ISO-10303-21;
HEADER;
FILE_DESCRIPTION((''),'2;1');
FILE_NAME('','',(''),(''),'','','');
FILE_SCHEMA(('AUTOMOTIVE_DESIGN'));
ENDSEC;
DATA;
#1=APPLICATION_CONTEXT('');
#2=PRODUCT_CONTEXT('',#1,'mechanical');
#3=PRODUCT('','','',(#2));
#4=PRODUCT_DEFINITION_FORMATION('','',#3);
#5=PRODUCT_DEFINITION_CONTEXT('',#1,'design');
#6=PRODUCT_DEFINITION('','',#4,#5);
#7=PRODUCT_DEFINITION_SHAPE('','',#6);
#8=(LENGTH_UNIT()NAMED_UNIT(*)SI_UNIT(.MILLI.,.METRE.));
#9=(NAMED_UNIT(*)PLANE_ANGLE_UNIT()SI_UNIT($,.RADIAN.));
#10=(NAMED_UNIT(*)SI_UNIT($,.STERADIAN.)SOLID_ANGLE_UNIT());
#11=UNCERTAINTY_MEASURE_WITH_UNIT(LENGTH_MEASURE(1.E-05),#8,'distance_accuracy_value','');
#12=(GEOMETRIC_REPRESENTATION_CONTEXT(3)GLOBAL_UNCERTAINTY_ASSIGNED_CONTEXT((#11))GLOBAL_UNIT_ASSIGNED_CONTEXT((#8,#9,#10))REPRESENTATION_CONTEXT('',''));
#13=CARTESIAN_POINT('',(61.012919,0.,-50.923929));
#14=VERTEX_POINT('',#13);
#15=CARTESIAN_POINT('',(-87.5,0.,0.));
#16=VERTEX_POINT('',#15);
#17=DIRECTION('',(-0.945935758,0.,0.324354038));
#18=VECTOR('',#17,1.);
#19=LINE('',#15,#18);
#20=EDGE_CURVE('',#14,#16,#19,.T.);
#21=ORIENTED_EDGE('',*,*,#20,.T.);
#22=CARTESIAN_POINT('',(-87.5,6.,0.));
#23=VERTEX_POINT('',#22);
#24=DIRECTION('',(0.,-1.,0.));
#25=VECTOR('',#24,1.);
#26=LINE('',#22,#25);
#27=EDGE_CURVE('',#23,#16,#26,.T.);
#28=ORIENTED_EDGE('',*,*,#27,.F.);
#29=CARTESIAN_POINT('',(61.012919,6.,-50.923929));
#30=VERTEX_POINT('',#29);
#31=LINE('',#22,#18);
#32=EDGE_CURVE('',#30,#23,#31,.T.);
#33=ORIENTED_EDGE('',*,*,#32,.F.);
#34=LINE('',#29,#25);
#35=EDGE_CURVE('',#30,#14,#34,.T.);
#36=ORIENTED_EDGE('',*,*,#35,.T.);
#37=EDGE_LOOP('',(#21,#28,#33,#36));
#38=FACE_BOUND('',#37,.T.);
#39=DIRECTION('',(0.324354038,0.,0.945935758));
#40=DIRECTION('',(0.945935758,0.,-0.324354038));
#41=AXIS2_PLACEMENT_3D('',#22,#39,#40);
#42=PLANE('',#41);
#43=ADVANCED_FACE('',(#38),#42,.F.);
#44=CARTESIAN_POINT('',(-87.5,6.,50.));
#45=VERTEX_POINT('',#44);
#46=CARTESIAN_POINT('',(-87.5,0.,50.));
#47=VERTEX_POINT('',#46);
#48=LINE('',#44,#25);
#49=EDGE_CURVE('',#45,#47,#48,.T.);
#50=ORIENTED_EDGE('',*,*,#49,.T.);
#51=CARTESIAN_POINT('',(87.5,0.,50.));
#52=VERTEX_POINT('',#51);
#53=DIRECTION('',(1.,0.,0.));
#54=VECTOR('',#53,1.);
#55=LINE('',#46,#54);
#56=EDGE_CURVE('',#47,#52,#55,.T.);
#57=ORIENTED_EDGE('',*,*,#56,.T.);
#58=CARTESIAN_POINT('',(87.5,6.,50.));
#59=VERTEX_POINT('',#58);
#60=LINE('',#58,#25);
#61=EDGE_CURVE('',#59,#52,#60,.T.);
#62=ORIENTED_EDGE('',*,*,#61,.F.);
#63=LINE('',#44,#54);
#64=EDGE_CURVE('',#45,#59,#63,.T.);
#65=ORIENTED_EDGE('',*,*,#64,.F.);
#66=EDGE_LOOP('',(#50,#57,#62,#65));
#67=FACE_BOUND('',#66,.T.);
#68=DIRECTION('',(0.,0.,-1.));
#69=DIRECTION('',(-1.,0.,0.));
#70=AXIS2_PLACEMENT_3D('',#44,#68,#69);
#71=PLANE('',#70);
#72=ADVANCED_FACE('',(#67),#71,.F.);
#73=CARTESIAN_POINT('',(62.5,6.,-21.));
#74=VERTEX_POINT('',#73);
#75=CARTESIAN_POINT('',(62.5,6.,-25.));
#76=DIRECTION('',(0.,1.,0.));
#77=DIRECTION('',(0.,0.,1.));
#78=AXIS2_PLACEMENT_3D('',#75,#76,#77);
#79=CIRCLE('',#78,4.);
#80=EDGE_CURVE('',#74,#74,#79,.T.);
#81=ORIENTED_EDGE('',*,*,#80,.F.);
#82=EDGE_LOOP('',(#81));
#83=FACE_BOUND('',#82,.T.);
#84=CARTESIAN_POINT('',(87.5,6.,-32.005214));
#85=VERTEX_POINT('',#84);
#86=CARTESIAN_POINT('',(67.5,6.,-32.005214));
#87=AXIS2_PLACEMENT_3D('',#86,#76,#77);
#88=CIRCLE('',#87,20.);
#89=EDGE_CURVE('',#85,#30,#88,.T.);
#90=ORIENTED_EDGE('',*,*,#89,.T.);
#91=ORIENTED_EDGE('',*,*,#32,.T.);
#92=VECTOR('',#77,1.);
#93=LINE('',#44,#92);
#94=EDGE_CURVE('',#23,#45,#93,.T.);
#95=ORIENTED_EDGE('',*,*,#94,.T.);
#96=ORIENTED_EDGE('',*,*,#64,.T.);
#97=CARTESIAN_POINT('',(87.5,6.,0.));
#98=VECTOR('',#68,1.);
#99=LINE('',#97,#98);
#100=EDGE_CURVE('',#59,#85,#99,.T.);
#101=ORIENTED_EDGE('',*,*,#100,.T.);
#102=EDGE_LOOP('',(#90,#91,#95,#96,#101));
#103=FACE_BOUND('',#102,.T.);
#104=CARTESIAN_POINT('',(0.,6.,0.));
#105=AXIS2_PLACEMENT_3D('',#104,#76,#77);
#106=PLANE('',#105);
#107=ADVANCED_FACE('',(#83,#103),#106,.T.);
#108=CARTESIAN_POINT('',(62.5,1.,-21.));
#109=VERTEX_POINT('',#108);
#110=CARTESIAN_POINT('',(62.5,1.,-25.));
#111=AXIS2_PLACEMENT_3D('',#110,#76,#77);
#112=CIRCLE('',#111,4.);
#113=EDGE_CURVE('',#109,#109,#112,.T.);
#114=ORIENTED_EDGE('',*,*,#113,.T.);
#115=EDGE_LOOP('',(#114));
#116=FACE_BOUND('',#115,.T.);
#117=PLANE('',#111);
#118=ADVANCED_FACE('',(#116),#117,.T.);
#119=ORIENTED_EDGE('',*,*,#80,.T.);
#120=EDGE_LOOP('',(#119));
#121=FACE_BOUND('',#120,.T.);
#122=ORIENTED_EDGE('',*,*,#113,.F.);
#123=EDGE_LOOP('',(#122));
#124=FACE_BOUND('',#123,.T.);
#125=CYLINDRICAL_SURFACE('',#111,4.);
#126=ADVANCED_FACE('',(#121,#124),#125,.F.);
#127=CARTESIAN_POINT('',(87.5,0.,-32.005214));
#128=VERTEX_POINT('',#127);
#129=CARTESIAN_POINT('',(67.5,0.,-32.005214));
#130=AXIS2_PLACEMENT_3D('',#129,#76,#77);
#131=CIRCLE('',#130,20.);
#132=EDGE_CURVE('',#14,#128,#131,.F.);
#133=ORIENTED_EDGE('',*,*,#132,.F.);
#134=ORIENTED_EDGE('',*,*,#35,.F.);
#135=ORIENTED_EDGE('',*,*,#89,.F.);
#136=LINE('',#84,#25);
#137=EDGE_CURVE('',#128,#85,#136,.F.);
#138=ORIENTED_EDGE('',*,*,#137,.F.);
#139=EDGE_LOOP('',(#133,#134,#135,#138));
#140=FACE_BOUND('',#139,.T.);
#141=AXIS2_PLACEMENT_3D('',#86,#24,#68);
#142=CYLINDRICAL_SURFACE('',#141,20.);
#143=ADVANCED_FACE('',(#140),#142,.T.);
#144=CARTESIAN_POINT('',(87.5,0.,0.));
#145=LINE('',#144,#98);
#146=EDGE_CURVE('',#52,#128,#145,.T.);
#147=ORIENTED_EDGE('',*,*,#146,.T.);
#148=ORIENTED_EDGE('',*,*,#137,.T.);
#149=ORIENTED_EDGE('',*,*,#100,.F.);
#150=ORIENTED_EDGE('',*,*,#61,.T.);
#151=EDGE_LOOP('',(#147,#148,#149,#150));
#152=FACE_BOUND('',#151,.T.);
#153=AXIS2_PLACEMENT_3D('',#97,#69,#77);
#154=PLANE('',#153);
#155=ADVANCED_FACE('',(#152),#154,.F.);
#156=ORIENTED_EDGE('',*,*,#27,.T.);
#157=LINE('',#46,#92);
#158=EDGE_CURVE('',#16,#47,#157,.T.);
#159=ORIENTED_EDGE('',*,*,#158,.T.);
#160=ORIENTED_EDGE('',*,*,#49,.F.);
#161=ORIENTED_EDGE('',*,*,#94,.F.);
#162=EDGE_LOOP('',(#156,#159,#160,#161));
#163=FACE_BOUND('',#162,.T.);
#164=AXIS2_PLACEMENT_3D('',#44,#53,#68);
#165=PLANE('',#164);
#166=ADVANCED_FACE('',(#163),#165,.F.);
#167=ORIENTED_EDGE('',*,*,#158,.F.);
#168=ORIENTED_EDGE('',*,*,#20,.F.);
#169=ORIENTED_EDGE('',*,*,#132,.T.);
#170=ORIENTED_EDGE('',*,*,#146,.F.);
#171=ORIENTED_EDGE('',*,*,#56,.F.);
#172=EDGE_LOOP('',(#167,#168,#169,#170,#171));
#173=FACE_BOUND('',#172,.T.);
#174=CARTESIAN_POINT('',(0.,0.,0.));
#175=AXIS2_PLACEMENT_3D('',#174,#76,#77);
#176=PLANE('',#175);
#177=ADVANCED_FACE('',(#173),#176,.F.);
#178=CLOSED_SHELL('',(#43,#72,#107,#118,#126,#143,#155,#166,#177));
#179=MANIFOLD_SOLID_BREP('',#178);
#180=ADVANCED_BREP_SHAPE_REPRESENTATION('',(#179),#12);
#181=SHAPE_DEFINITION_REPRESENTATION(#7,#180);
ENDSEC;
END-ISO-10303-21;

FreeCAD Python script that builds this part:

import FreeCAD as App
import Part
import Sketcher

V = App.Vector
Q = App.Units.Quantity


def edges_at(feature, points):
    """Names of the edges that pass closest to the given points."""
    edges = feature.Shape.Edges
    near = lambda p: min(range(len(edges)), key=lambda i: edges[i].distToShape(Part.Vertex(*p))[0])
    return sorted({f"Edge{near(p) + 1}" for p in points})


def add_polygon(sketch, points):
    """Adds a closed chain of lines whose ends are joined by coincident constraints."""
    first, n = sketch.GeometryCount, len(points)
    for a, b in zip(points, points[1:] + points[:1]):
        sketch.addGeometry(Part.LineSegment(App.Vector(*a, 0), App.Vector(*b, 0)), False)
    for i in range(n):
        sketch.addConstraint(Sketcher.Constraint("Coincident", first + i, 2, first + (i + 1) % n, 1))

doc = App.newDocument("Part")
params = doc.addObject("Spreadsheet::Sheet", "Params")
for row, (alias, value) in enumerate([
    ("sketch1_width", "175 mm"),
    ("sketch1_height", "50 mm"),
    ("pad1_length", "6 mm"),
    ("fillet_radius", "20 mm"),
    ("sketch2_diameter", "8 mm"),
    ("pocket1_length", "5 mm"),
], start=1):
    params.set(f"A{row}", alias)
    params.set(f"B{row}", "=" + value)
    params.setAlias(f"B{row}", alias)

body = doc.addObject("PartDesign::Body", "Body")

# Sketch on XZ plane
sketch1 = body.newObject("Sketcher::SketchObject", "Sketch")
sketch1.AttachmentSupport = (doc.getObject("XZ_Plane"), [""])
sketch1.MapMode = "FlatFace"
add_polygon(sketch1, [(-88, 50), (88, 50), (88, -60), (-88, 0)])  # lines 0-3
sketch1.addConstraint([
    Sketcher.Constraint("Horizontal", 0),
    Sketcher.Constraint("Vertical", 1),
    Sketcher.Constraint("Vertical", 3),
    Sketcher.Constraint("PointOnObject", 2, 2, -1),
    Sketcher.Constraint("DistanceX", 0, 1, 0, 2, Q("175 mm")),
    Sketcher.Constraint("DistanceY", 3, 1, 3, 2, Q("50 mm")),
    Sketcher.Constraint("DistanceX", -1, 1, 0, 2, Q("87.5 mm")),
    Sketcher.Constraint("DistanceY", 1, 2, 1, 1, Q("110.006143 mm")),
])
sketch1.setExpression("Constraints[8]", "Params.sketch1_width")
sketch1.setExpression("Constraints[9]", "Params.sketch1_height")
pad1 = body.newObject("PartDesign::Pad", "Pad")
pad1.Profile = sketch1
pad1.setExpression("Length", "Params.pad1_length")
pad1.Reversed = True
doc.recompute()

fillet = body.newObject("PartDesign::Fillet", "Fillet")
fillet.Base = (pad1, edges_at(pad1, [(87.5, 3, -60.006)]))
fillet.setExpression("Radius", "Params.fillet_radius")

# Sketch on XZ plane
sketch2 = body.newObject("Sketcher::SketchObject", "Sketch001")
sketch2.AttachmentSupport = (doc.getObject("XZ_Plane"), [""])
sketch2.MapMode = "FlatFace"
sketch2.AttachmentOffset = App.Placement(V(0, 0, -6), App.Rotation())
sketch2.addGeometry(Part.Circle(V(62.5, -25, 0), V(0, 0, 1), 4), False)
sketch2.addConstraint([
    Sketcher.Constraint("Diameter", 0, Q("8 mm")),
    Sketcher.Constraint("DistanceY", 0, 3, -1, 1, Q("25 mm")),
    Sketcher.Constraint("DistanceX", -1, 1, 0, 3, Q("62.5 mm")),
])
sketch2.setExpression("Constraints[0]", "Params.sketch2_diameter")
pocket1 = body.newObject("PartDesign::Pocket", "Pocket")
pocket1.Profile = sketch2
pocket1.setExpression("Length", "Params.pocket1_length")
pocket1.Reversed = True

doc.recompute()
